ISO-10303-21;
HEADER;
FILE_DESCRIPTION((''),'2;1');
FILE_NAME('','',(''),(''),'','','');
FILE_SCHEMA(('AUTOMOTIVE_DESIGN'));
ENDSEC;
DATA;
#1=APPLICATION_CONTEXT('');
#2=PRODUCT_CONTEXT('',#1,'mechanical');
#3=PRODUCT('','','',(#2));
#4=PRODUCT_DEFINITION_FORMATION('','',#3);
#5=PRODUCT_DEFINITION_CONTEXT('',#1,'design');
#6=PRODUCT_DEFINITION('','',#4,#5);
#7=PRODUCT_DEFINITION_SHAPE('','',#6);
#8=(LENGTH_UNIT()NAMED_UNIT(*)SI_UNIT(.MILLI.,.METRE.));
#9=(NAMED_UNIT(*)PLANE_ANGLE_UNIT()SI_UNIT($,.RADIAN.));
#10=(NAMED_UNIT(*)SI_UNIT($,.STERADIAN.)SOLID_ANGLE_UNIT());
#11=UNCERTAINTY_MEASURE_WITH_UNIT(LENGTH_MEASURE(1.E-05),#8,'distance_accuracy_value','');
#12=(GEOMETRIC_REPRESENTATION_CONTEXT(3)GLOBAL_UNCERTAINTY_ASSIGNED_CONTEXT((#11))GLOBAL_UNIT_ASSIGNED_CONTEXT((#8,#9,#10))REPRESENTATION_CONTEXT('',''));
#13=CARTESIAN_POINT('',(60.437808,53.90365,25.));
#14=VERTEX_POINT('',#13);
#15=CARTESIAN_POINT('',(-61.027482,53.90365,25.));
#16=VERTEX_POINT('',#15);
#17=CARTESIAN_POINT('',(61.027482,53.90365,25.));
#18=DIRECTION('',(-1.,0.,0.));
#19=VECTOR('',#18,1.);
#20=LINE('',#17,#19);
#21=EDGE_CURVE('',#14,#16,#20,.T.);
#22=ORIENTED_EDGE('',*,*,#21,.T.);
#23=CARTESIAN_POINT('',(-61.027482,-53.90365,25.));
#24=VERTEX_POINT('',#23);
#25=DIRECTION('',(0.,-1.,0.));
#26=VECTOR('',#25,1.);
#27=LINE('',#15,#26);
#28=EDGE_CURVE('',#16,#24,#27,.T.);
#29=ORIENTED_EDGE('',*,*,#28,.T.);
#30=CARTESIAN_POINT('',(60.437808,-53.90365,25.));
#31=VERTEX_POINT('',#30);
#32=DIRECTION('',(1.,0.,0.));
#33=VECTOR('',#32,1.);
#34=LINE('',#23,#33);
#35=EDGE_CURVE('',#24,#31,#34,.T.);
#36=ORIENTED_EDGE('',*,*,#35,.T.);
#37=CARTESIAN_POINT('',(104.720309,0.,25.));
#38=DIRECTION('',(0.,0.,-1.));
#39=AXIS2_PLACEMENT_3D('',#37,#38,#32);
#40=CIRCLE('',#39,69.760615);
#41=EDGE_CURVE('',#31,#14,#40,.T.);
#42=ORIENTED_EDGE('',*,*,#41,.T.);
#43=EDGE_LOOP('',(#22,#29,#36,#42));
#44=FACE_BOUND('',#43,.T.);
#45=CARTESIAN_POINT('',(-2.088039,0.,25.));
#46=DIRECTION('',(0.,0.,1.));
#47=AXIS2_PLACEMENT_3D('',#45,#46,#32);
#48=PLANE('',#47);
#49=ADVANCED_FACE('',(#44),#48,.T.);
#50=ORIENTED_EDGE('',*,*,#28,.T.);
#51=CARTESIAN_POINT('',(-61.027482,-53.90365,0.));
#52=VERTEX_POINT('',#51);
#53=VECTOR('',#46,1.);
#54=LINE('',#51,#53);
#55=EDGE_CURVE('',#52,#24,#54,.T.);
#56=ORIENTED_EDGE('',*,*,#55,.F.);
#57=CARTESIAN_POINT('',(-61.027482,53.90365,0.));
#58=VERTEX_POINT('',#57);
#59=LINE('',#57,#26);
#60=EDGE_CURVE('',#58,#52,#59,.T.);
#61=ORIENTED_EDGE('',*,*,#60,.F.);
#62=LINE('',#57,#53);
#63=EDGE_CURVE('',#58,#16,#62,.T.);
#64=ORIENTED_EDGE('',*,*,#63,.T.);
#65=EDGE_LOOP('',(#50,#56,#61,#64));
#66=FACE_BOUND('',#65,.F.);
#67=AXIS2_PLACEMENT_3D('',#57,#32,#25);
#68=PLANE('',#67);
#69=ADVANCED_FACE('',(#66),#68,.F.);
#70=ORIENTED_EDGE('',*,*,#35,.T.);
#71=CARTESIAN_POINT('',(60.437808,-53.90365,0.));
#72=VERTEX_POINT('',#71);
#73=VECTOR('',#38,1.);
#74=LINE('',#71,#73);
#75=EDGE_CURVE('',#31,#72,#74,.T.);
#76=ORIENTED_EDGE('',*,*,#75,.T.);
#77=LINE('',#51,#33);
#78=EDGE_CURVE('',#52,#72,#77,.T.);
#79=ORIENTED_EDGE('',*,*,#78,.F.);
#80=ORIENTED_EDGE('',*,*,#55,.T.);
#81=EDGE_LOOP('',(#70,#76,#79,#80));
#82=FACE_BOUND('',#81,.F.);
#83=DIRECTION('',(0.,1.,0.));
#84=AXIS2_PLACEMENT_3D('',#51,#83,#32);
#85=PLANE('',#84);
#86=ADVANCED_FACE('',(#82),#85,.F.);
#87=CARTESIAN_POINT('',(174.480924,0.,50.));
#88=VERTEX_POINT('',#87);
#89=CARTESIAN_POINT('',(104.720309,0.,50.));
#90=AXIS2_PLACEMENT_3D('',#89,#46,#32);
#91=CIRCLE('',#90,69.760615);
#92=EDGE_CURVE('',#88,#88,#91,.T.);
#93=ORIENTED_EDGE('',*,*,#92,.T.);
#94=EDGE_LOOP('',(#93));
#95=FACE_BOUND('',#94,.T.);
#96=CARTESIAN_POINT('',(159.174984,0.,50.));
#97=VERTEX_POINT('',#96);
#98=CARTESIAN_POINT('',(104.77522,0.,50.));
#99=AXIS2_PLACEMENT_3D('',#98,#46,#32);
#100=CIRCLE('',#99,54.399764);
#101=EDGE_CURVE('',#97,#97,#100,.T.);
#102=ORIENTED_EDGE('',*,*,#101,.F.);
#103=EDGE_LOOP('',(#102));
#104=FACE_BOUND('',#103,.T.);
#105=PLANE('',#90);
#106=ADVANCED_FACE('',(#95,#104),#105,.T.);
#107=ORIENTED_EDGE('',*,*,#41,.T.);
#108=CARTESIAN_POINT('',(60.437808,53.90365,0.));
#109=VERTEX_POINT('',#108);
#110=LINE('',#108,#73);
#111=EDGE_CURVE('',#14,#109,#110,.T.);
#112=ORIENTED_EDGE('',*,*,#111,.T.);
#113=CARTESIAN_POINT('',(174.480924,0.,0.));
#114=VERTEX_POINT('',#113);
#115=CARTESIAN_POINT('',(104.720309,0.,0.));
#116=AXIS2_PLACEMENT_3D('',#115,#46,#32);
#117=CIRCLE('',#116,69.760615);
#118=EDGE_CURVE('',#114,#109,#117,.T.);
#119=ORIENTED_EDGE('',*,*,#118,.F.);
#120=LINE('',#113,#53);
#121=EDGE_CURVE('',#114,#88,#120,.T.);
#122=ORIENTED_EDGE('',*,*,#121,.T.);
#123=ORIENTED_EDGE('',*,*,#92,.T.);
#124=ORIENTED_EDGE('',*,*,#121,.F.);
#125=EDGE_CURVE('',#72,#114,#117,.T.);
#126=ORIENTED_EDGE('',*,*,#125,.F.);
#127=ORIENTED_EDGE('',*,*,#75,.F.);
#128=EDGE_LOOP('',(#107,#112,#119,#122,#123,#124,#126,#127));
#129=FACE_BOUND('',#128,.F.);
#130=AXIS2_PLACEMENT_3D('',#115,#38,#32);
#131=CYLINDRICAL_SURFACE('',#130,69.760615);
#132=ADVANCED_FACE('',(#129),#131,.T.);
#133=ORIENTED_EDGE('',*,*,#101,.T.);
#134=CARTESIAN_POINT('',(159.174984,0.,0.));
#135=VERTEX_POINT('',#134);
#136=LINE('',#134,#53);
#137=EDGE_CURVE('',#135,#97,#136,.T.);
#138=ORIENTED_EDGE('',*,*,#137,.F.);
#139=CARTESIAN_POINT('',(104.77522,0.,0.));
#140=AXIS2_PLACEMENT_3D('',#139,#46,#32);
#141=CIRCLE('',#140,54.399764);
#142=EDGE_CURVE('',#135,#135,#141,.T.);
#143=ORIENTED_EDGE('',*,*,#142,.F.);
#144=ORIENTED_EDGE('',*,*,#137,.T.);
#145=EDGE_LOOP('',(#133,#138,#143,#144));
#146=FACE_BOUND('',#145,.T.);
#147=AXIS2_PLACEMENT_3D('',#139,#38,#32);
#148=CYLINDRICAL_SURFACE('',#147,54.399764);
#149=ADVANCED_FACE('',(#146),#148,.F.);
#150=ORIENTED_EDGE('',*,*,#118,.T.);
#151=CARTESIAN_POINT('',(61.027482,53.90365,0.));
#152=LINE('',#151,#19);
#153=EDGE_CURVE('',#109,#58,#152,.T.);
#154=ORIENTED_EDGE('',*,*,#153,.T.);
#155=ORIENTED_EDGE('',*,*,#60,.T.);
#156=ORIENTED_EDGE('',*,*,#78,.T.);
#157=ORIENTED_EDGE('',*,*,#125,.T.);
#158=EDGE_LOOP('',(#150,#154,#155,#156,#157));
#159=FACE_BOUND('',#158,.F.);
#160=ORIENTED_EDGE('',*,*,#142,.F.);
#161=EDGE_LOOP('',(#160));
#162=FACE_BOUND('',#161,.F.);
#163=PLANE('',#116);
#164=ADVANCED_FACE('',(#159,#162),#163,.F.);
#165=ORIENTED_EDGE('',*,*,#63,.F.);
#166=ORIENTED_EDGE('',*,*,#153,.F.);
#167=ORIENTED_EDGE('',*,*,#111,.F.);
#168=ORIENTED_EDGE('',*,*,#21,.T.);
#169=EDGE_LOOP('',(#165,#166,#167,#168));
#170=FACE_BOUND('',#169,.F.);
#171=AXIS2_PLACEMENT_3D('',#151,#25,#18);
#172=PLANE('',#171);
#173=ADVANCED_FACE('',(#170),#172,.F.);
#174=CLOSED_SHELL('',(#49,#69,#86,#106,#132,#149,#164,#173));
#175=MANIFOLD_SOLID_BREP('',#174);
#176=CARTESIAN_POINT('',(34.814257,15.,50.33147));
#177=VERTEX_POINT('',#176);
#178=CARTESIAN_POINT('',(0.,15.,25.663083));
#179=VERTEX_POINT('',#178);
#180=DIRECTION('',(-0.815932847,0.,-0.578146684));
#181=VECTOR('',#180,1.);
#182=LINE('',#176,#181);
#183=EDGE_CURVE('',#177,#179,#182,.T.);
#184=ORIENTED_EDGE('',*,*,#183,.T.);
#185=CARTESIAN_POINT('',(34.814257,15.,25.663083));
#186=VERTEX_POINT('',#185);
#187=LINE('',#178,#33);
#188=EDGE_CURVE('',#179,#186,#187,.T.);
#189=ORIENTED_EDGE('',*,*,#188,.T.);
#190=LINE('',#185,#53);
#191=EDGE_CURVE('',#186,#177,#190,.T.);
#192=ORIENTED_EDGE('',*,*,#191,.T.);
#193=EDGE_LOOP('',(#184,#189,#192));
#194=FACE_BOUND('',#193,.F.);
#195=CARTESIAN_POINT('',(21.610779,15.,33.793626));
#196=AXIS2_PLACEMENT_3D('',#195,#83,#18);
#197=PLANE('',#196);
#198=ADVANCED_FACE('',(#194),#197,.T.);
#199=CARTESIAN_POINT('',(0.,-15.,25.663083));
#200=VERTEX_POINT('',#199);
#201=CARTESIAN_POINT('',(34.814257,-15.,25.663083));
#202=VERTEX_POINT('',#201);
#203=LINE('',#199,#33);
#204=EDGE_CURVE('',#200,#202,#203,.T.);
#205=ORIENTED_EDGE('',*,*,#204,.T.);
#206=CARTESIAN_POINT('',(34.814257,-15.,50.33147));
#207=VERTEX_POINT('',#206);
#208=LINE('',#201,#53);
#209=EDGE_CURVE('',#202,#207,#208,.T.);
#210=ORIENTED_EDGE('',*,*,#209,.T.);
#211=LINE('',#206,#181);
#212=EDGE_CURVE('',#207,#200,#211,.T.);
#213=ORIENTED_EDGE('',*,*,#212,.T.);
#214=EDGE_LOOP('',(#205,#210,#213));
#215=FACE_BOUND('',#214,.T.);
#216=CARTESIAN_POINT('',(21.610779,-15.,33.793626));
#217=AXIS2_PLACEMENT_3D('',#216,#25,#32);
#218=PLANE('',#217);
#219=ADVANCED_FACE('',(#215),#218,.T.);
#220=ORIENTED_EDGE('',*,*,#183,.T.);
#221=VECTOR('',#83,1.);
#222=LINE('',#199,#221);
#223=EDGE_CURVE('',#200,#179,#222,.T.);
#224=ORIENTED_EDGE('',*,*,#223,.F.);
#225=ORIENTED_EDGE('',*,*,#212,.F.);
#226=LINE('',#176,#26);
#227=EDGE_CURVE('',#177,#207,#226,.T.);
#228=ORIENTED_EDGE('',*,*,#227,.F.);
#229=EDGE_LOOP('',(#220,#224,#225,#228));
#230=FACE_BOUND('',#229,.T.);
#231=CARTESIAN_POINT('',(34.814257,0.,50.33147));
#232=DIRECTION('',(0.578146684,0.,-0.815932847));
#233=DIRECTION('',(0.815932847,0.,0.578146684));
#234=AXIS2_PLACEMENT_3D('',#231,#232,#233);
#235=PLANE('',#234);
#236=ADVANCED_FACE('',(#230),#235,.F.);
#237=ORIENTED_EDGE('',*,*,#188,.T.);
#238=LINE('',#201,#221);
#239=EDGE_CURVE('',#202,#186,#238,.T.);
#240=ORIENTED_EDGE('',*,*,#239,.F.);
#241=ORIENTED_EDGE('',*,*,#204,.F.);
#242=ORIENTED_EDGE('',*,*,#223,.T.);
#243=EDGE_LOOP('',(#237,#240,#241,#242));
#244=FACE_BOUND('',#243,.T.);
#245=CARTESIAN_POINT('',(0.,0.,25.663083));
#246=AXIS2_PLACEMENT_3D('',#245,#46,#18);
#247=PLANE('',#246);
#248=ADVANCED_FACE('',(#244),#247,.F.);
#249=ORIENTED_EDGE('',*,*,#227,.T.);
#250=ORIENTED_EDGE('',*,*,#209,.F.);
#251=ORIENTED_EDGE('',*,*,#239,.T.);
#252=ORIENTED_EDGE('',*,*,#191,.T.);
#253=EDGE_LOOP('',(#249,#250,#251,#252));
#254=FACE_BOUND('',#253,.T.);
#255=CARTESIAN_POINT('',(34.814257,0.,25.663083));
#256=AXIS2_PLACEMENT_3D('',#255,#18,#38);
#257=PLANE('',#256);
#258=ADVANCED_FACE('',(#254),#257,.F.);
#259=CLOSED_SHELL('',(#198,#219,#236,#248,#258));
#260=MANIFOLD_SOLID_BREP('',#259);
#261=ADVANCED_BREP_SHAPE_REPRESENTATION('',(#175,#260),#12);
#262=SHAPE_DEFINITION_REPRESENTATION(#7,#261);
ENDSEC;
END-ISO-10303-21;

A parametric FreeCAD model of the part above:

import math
import FreeCAD as App
import Part
import Sketcher

V = App.Vector
Q = App.Units.Quantity

doc = App.newDocument("Part")
body = doc.addObject("PartDesign::Body", "Body")

sketch1 = body.newObject("Sketcher::SketchObject", "Sketch")
sketch1.AttachmentSupport = (doc.getObject("XY_Plane"), [""])
sketch1.MapMode = "FlatFace"
sketch1.addGeometry([
    Part.LineSegment(V(61, 54, 0), V(-61, 54, 0)),
    Part.LineSegment(V(-61, 54, 0), V(-61, -54, 0)),
    Part.LineSegment(V(-61, -54, 0), V(61, -54, 0)),
    Part.ArcOfCircle(Part.Circle(V(105, 0, 0), V(0, 0, 1), 70), math.radians(129), math.radians(231)),
], False)
sketch1.addConstraint([
    Sketcher.Constraint("Coincident", 0, 2, 1, 1),
    Sketcher.Constraint("Coincident", 1, 2, 2, 1),
    Sketcher.Constraint("Coincident", 2, 2, 3, 2),
    Sketcher.Constraint("Coincident", 3, 1, 0, 1),
    Sketcher.Constraint("Horizontal", 0),
    Sketcher.Constraint("Vertical", 1),
    Sketcher.Constraint("Horizontal", 2),
    Sketcher.Constraint("Symmetric", 0, 2, 2, 2, -1, 1),
    Sketcher.Constraint("PointOnObject", 3, 3, -1),
    Sketcher.Constraint("DistanceY", 1, 2, 1, 1, Q("107.8073 mm")),
    Sketcher.Constraint("Radius", 3, Q("69.728914 mm")),
    Sketcher.Constraint("DistanceX", 0, 2, 0, 1, Q("122.054964 mm")),
])
pad1 = body.newObject("PartDesign::Pad", "Pad")
pad1.Profile = sketch1
pad1.Length = 25

sketch2 = body.newObject("Sketcher::SketchObject", "Sketch001")
sketch2.AttachmentSupport = (doc.getObject("XY_Plane"), [""])
sketch2.MapMode = "FlatFace"
sketch2.addGeometry(Part.Circle(V(105, 0, 0), V(0, 0, 1), 70), False)
sketch2.addConstraint([
    Sketcher.Constraint("PointOnObject", 0, 3, -1),
    Sketcher.Constraint("Diameter", 0, Q("139.52123 mm")),
    Sketcher.Constraint("DistanceX", -1, 1, 0, 3, Q("104.720309 mm")),
])
pad2 = body.newObject("PartDesign::Pad", "Pad001")
pad2.Profile = sketch2
pad2.Length = 50

sketch3 = body.newObject("Sketcher::SketchObject", "Sketch002")
sketch3.AttachmentSupport = (doc.getObject("XY_Plane"), [""])
sketch3.MapMode = "FlatFace"
sketch3.addGeometry(Part.Circle(V(105, 0, 0), V(0, 0, 1), 54), False)
sketch3.addConstraint([
    Sketcher.Constraint("PointOnObject", 0, 3, -1),
    Sketcher.Constraint("Diameter", 0, Q("108.799528 mm")),
    Sketcher.Constraint("DistanceX", -1, 1, 0, 3, Q("104.77522 mm")),
])
pocket1 = body.newObject("PartDesign::Pocket", "Pocket")
pocket1.Profile = sketch3
pocket1.Length = 50
pocket1.Reversed = True
body2 = doc.addObject("PartDesign::Body", "Body001")

sketch4 = body2.newObject("Sketcher::SketchObject", "Sketch003")
sketch4.AttachmentSupport = (doc.getObject("XZ_Plane001"), [""])
sketch4.MapMode = "FlatFace"
sketch4.addGeometry([
    Part.LineSegment(V(35, 26, 0), V(35, 50, 0)),
    Part.LineSegment(V(35, 50, 0), V(0, 26, 0)),
    Part.LineSegment(V(0, 26, 0), V(35, 26, 0)),
], False)
sketch4.addConstraint([
    Sketcher.Constraint("Coincident", 0, 2, 1, 1),
    Sketcher.Constraint("Coincident", 1, 2, 2, 1),
    Sketcher.Constraint("Coincident", 2, 2, 0, 1),
    Sketcher.Constraint("Vertical", 0),
    Sketcher.Constraint("Horizontal", 2),
    Sketcher.Constraint("PointOnObject", 1, 2, -2),
    Sketcher.Constraint("Distance", 1, Q("42.668042 mm")),
    Sketcher.Constraint("DistanceX", 2, 1, 2, 2, Q("34.814257 mm")),
    Sketcher.Constraint("DistanceY", -1, 1, 0, 2, Q("50.33147 mm")),
])
pad3 = body2.newObject("PartDesign::Pad", "Pad002")
pad3.Profile = sketch4
pad3.Length = 15
body3 = doc.addObject("PartDesign::Body", "Body002")
doc.recompute()

body3.BaseFeature = body2
doc.recompute()

mirroring = doc.addObject("Part::Mirroring", "Mirroring")
mirroring.Source = body2
mirroring.Base = V(23.209505, 0, 33.885879)
mirroring.Normal = V(0, 1, 0)
body4 = doc.addObject("PartDesign::Body", "Body003")
body4.BaseFeature = mirroring
boolean = body3.newObject("PartDesign::Boolean", "Boolean")
boolean.Type = "Fuse"
boolean.addObjects([body4])
doc.recompute()
mirroring.Visibility = False

doc.recompute()
